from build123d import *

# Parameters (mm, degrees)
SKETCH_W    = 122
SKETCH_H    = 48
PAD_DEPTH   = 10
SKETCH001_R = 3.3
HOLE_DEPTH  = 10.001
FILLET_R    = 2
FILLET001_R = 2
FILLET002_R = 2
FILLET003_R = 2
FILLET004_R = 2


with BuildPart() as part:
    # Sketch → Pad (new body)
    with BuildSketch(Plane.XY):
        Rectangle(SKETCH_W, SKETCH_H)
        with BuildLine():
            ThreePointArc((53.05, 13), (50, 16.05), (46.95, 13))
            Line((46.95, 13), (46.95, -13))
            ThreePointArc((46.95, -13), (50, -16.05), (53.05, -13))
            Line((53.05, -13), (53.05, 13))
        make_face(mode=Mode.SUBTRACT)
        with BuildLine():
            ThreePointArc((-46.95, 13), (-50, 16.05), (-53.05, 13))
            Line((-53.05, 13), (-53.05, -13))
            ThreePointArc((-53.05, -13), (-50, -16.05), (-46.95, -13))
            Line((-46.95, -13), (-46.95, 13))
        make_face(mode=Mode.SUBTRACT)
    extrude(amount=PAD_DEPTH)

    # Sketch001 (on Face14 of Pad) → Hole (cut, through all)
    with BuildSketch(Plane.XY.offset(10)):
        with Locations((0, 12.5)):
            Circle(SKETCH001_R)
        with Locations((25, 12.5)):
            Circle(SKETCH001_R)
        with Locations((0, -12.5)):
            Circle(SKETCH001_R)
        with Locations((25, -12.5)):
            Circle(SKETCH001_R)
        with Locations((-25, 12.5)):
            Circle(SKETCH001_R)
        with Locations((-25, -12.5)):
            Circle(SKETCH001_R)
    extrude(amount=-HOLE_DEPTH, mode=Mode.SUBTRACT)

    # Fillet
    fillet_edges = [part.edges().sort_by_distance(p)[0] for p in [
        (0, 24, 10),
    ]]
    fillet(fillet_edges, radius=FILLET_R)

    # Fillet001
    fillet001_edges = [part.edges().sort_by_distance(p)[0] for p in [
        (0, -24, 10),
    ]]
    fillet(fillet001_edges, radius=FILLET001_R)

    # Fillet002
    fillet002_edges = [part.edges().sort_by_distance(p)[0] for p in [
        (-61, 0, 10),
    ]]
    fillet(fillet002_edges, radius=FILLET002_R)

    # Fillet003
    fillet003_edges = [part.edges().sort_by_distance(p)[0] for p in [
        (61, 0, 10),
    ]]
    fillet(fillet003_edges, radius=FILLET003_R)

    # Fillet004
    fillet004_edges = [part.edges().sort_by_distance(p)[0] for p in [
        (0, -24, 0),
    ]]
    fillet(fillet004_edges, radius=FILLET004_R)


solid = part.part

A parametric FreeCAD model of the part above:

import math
import FreeCAD as App
import Part
import Sketcher

V = App.Vector
Q = App.Units.Quantity


def edges_at(feature, points):
    """Names of the edges that pass closest to the given points."""
    edges = feature.Shape.Edges
    near = lambda p: min(range(len(edges)), key=lambda i: edges[i].distToShape(Part.Vertex(*p))[0])
    return sorted({f"Edge{near(p) + 1}" for p in points})

doc = App.newDocument("Part")
params = doc.addObject("Spreadsheet::Sheet", "Params")
for row, (alias, value) in enumerate([
    ("sketch1_width", "122 mm"),
    ("sketch1_height", "48 mm"),
    ("sketch1_height2", "26 mm"),
    ("sketch1_radius", "3.05 mm"),
    ("pad1_length", "10 mm"),
    ("sketch2_diameter", "6.6 mm"),
    ("fillet_radius", "2 mm"),
    ("fillet2_radius", "2 mm"),
    ("fillet3_radius", "2 mm"),
    ("fillet4_radius", "2 mm"),
    ("fillet5_radius", "2 mm"),
], start=1):
    params.set(f"A{row}", alias)
    params.set(f"B{row}", "=" + value)
    params.setAlias(f"B{row}", alias)

body = doc.addObject("PartDesign::Body", "Body")

# Sketch on XY plane
sketch1 = body.newObject("Sketcher::SketchObject", "Sketch")
sketch1.AttachmentSupport = (doc.getObject("XY_Plane"), [""])
sketch1.MapMode = "FlatFace"
sketch1.addGeometry([
    Part.LineSegment(V(-61, 24, 0), V(-61, -24, 0)),  # 0
    Part.LineSegment(V(-61, -24, 0), V(61, -24, 0)),  # 1
    Part.LineSegment(V(61, -24, 0), V(61, 24, 0)),  # 2
    Part.LineSegment(V(61, 24, 0), V(-61, 24, 0)),  # 3
    Part.ArcOfCircle(Part.Circle(V(-50, 13, 0), V(0, 0, 1), 3), math.radians(0), math.radians(180)),  # 4
    Part.LineSegment(V(-47, 13, 0), V(-47, -13, 0)),  # 5
    Part.ArcOfCircle(Part.Circle(V(-50, -13, 0), V(0, 0, 1), 3), math.radians(180), math.radians(360)),  # 6
    Part.LineSegment(V(-53, -13, 0), V(-53, 13, 0)),  # 7
    Part.ArcOfCircle(Part.Circle(V(50, 13, 0), V(0, 0, 1), 3), math.radians(0), math.radians(180)),  # 8
    Part.LineSegment(V(53, 13, 0), V(53, -13, 0)),  # 9
    Part.ArcOfCircle(Part.Circle(V(50, -13, 0), V(0, 0, 1), 3), math.radians(180), math.radians(360)),  # 10
    Part.LineSegment(V(47, -13, 0), V(47, 13, 0)),  # 11
], False)
sketch1.addConstraint([
    Sketcher.Constraint("Coincident", 0, 2, 1, 1),
    Sketcher.Constraint("Coincident", 1, 2, 2, 1),
    Sketcher.Constraint("Coincident", 2, 2, 3, 1),
    Sketcher.Constraint("Coincident", 3, 2, 0, 1),
    Sketcher.Constraint("Tangent", 4, 1, 5, 1),
    Sketcher.Constraint("Tangent", 5, 2, 6, 2),
    Sketcher.Constraint("Tangent", 6, 1, 7, 1),
    Sketcher.Constraint("Tangent", 7, 2, 4, 2),
    Sketcher.Constraint("Tangent", 8, 1, 9, 1),
    Sketcher.Constraint("Tangent", 9, 2, 10, 2),
    Sketcher.Constraint("Tangent", 10, 1, 11, 1),
    Sketcher.Constraint("Tangent", 11, 2, 8, 2),
    Sketcher.Constraint("Vertical", 0),
    Sketcher.Constraint("Horizontal", 1),
    Sketcher.Constraint("Vertical", 2),
    Sketcher.Constraint("Horizontal", 3),
    Sketcher.Constraint("Vertical", 5),
    Sketcher.Constraint("Vertical", 7),
    Sketcher.Constraint("Vertical", 9),
    Sketcher.Constraint("Vertical", 11),
    Sketcher.Constraint("Equal", 6, 8),
    Sketcher.Constraint("Symmetric", 6, 3, 8, 3, -1, 1),
    Sketcher.Constraint("Symmetric", 0, 2, 2, 2, -1, 1),
    Sketcher.Constraint("Horizontal", 4, 3, 8, 3),
    Sketcher.Constraint("Horizontal", 6, 3, 10, 3),
    Sketcher.Constraint("DistanceX", 1, 1, 1, 2, Q("122 mm")),
    Sketcher.Constraint("DistanceY", 0, 2, 0, 1, Q("48 mm")),
    Sketcher.Constraint("DistanceY", 5, 2, 5, 1, Q("26 mm")),
    Sketcher.Constraint("Radius", 4, Q("3.05 mm")),
    Sketcher.Constraint("DistanceX", 4, 3, -1, 1, Q("50 mm")),
])
sketch1.setExpression("Constraints[25]", "Params.sketch1_width")
sketch1.setExpression("Constraints[26]", "Params.sketch1_height")
sketch1.setExpression("Constraints[27]", "Params.sketch1_height2")
sketch1.setExpression("Constraints[28]", "Params.sketch1_radius")
pad1 = body.newObject("PartDesign::Pad", "Pad")
pad1.Profile = sketch1
pad1.setExpression("Length", "Params.pad1_length")

# Sketch on XY plane
sketch2 = body.newObject("Sketcher::SketchObject", "Sketch001")
sketch2.AttachmentSupport = (doc.getObject("XY_Plane"), [""])
sketch2.MapMode = "FlatFace"
sketch2.AttachmentOffset = App.Placement(V(0, 0, 10), App.Rotation())
sketch2.addGeometry([
    Part.Circle(V(0, 12.5, 0), V(0, 0, 1), 3.3),  # 0
    Part.Circle(V(25, 12.5, 0), V(0, 0, 1), 3.3),  # 1
    Part.Circle(V(0, -12.5, 0), V(0, 0, 1), 3.3),  # 2
    Part.Circle(V(25, -12.5, 0), V(0, 0, 1), 3.3),  # 3
    Part.Circle(V(-25, 12.5, 0), V(0, 0, 1), 3.3),  # 4
    Part.Circle(V(-25, -12.5, 0), V(0, 0, 1), 3.3),  # 5
], False)
sketch2.addConstraint([
    Sketcher.Constraint("Equal", 0, 1),
    Sketcher.Constraint("Equal", 1, 2),
    Sketcher.Constraint("Equal", 2, 3),
    Sketcher.Constraint("Equal", 3, 4),
    Sketcher.Constraint("Equal", 4, 5),
    Sketcher.Constraint("Symmetric", 0, 3, 2, 3, -1, 1),
    Sketcher.Constraint("Symmetric", 3, 3, 4, 3, -1, 1),
    Sketcher.Constraint("Symmetric", 1, 3, 5, 3, -1, 1),
    Sketcher.Constraint("Symmetric", 1, 3, 4, 3, -2),
    Sketcher.Constraint("PointOnObject", 0, 3, -2),
    Sketcher.Constraint("Horizontal", 0, 3, 1, 3),
    Sketcher.Constraint("Diameter", 0, Q("6.6 mm")),
    Sketcher.Constraint("DistanceX", -1, 1, 1, 3, Q("25 mm")),
    Sketcher.Constraint("DistanceY", 2, 3, 0, 3, Q("25 mm")),
])
sketch2.setExpression("Constraints[11]", "Params.sketch2_diameter")
pocket1 = body.newObject("PartDesign::Pocket", "Pocket")
pocket1.Profile = sketch2
pocket1.Type = "ThroughAll"
doc.recompute()

fillet = body.newObject("PartDesign::Fillet", "Fillet")
fillet.Base = (pocket1, edges_at(pocket1, [(0, 24, 10)]))
fillet.setExpression("Radius", "Params.fillet_radius")
doc.recompute()

fillet2 = body.newObject("PartDesign::Fillet", "Fillet001")
fillet2.Base = (fillet, edges_at(fillet, [(0, -24, 10)]))
fillet2.setExpression("Radius", "Params.fillet2_radius")
doc.recompute()

fillet3 = body.newObject("PartDesign::Fillet", "Fillet002")
fillet3.Base = (fillet2, edges_at(fillet2, [(-61, 0, 10)]))
fillet3.setExpression("Radius", "Params.fillet3_radius")
doc.recompute()

fillet4 = body.newObject("PartDesign::Fillet", "Fillet003")
fillet4.Base = (fillet3, edges_at(fillet3, [(61, 0, 10)]))
fillet4.setExpression("Radius", "Params.fillet4_radius")
doc.recompute()

fillet5 = body.newObject("PartDesign::Fillet", "Fillet004")
fillet5.Base = (fillet4, edges_at(fillet4, [(0, -24, 0)]))
fillet5.setExpression("Radius", "Params.fillet5_radius")

doc.recompute()
